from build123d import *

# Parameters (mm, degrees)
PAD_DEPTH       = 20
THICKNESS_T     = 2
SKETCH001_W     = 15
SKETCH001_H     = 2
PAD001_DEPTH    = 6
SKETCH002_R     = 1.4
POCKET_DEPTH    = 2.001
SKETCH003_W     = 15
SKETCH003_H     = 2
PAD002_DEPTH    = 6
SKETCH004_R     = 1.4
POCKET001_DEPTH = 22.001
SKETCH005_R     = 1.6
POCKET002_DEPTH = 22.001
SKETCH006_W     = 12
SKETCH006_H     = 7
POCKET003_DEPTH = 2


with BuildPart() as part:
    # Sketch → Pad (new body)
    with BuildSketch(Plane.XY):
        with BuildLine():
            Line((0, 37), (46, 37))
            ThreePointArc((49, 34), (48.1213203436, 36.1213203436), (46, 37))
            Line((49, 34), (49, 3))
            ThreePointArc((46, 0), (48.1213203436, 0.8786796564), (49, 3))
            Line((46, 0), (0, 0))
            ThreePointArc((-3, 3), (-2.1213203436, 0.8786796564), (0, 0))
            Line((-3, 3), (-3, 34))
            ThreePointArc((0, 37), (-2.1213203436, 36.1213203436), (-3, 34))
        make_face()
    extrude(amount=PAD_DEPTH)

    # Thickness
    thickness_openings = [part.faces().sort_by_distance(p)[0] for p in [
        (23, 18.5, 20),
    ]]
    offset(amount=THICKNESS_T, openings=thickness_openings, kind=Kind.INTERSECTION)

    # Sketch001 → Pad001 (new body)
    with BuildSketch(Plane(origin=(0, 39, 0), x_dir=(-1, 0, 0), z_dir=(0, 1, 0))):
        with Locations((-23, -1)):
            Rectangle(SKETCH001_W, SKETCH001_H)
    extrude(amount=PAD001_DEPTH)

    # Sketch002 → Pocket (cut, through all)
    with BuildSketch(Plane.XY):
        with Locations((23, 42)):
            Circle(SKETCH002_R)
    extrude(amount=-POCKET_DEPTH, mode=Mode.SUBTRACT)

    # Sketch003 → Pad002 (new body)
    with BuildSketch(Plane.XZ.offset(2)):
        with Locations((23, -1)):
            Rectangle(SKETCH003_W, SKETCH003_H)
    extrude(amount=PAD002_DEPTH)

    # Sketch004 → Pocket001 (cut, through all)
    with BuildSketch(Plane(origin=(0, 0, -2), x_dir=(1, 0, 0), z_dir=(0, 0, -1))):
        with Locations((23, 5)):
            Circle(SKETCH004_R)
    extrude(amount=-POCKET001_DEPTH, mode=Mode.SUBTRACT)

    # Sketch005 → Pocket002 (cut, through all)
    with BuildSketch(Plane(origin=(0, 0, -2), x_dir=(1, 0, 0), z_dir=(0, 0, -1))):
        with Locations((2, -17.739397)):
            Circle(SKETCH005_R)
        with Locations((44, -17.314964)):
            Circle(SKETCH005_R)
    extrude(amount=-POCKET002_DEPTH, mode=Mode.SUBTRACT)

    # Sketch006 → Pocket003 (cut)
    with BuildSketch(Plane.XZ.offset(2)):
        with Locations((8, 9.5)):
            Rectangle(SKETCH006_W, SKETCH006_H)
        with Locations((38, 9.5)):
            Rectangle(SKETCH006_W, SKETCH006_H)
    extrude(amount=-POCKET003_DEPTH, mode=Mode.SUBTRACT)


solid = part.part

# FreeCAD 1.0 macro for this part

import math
import FreeCAD as App
import Part
import Sketcher

V = App.Vector
Q = App.Units.Quantity


def faces_at(feature, points):
    """Names of the faces that lie closest to the given points."""
    faces = feature.Shape.Faces
    near = lambda p: min(range(len(faces)), key=lambda i: faces[i].distToShape(Part.Vertex(*p))[0])
    return sorted({f"Face{near(p) + 1}" for p in points})

doc = App.newDocument("Part")
body = doc.addObject("PartDesign::Body", "Body")

# Sketch on XY plane
sketch1 = doc.addObject("Sketcher::SketchObject", "Sketch")
body.addObject(sketch1)
sketch1.AttachmentSupport = (doc.XY_Plane, [""])
sketch1.MapMode = "FlatFace"
sketch1.addGeometry([
    Part.LineSegment(V(46, 37, 0), V(0, 37, 0)),  # 0
    Part.ArcOfCircle(Part.Circle(V(0, 34, 0), V(0, 0, 1), 3), math.radians(90), math.radians(180)),  # 1
    Part.LineSegment(V(-3, 34, 0), V(-3, 3, 0)),  # 2
    Part.ArcOfCircle(Part.Circle(V(0, 3, 0), V(0, 0, 1), 3), math.radians(180), math.radians(270)),  # 3
    Part.LineSegment(V(0, 0, 0), V(46, 0, 0)),  # 4
    Part.ArcOfCircle(Part.Circle(V(46, 3, 0), V(0, 0, 1), 3), math.radians(-90), math.radians(0)),  # 5
    Part.LineSegment(V(49, 3, 0), V(49, 34, 0)),  # 6
    Part.ArcOfCircle(Part.Circle(V(46, 34, 0), V(0, 0, 1), 3), math.radians(0), math.radians(90)),  # 7
], False)
sketch1.addConstraint([
    Sketcher.Constraint("Tangent", 0, 2, 1, 1),
    Sketcher.Constraint("Tangent", 1, 2, 2, 1),
    Sketcher.Constraint("Tangent", 2, 2, 3, 1),
    Sketcher.Constraint("Tangent", 3, 2, 4, 1),
    Sketcher.Constraint("Tangent", 4, 2, 5, 1),
    Sketcher.Constraint("Tangent", 5, 2, 6, 1),
    Sketcher.Constraint("Tangent", 6, 2, 7, 1),
    Sketcher.Constraint("Tangent", 7, 2, 0, 1),
    Sketcher.Constraint("Horizontal", 0),
    Sketcher.Constraint("Vertical", 2),
    Sketcher.Constraint("Horizontal", 4),
    Sketcher.Constraint("Vertical", 6),
    Sketcher.Constraint("Coincident", 3, 2, -1, 1),
    Sketcher.Constraint("Equal", 1, 3),
    Sketcher.Constraint("Equal", 3, 5),
    Sketcher.Constraint("Equal", 5, 7),
    Sketcher.Constraint("Radius", 1, Q("3 mm")),
    Sketcher.Constraint("DistanceX", 0, 2, 0, 1, Q("46 mm")),
    Sketcher.Constraint("DistanceY", 2, 2, 2, 1, Q("31 mm")),
])
pad1 = doc.addObject("PartDesign::Pad", "Pad")
body.addObject(pad1)
pad1.Profile = sketch1
pad1.Length = 20
doc.recompute()

thickness = doc.addObject("PartDesign::Thickness", "Thickness")
body.addObject(thickness)
thickness.Base = (pad1, faces_at(pad1, [(23, 18.5, 20)]))
thickness.Value = 2
thickness.Reversed = False
thickness.Join = "Intersection"

# Sketch on XZ plane
sketch2 = doc.addObject("Sketcher::SketchObject", "Sketch001")
body.addObject(sketch2)
sketch2.AttachmentSupport = (doc.XZ_Plane, [""])
sketch2.MapMode = "FlatFace"
sketch2.AttachmentOffset = App.Placement(V(0, 0, -39), App.Rotation())
sketch2.addGeometry([
    Part.LineSegment(V(30.5, 0, 0), V(30.5, -2, 0)),
    Part.LineSegment(V(30.5, -2, 0), V(15.5, -2, 0)),
    Part.LineSegment(V(15.5, -2, 0), V(15.5, 0, 0)),
    Part.LineSegment(V(15.5, 0, 0), V(30.5, 0, 0)),
], False)
sketch2.addConstraint([
    Sketcher.Constraint("Coincident", 0, 2, 1, 1),
    Sketcher.Constraint("Coincident", 1, 2, 2, 1),
    Sketcher.Constraint("Coincident", 2, 2, 3, 1),
    Sketcher.Constraint("Coincident", 3, 2, 0, 1),
    Sketcher.Constraint("Vertical", 0),
    Sketcher.Constraint("Horizontal", 1),
    Sketcher.Constraint("Vertical", 2),
    Sketcher.Constraint("Horizontal", 3),
    Sketcher.Constraint("PointOnObject", 2, 2, -1),
    Sketcher.Constraint("DistanceX", 1, 2, 1, 1, Q("15 mm")),
    Sketcher.Constraint("DistanceY", 0, 2, 0, 1, Q("2 mm")),
    Sketcher.Constraint("DistanceX", -1, 1, 0, 2, Q("30.5 mm")),
])
pad2 = doc.addObject("PartDesign::Pad", "Pad001")
body.addObject(pad2)
pad2.Profile = sketch2
pad2.Length = 6
pad2.Reversed = True

# Sketch on XY plane
sketch3 = doc.addObject("Sketcher::SketchObject", "Sketch002")
body.addObject(sketch3)
sketch3.AttachmentSupport = (doc.XY_Plane, [""])
sketch3.MapMode = "FlatFace"
sketch3.addGeometry(Part.Circle(V(23, 42, 0), V(0, 0, 1), 1.4), False)
sketch3.addConstraint([
    Sketcher.Constraint("Diameter", 0, Q("2.8 mm")),
    Sketcher.Constraint("DistanceX", -1, 1, 0, 3, Q("23 mm")),
    Sketcher.Constraint("DistanceY", -1, 1, 0, 3, Q("42 mm")),
])
pocket1 = doc.addObject("PartDesign::Pocket", "Pocket")
body.addObject(pocket1)
pocket1.Profile = sketch3
pocket1.Type = "ThroughAll"

# Sketch on XZ plane
sketch4 = doc.addObject("Sketcher::SketchObject", "Sketch003")
body.addObject(sketch4)
sketch4.AttachmentSupport = (doc.XZ_Plane, [""])
sketch4.MapMode = "FlatFace"
sketch4.AttachmentOffset = App.Placement(V(0, 0, 2), App.Rotation())
sketch4.addGeometry([
    Part.LineSegment(V(15.5, 0, 0), V(15.5, -2, 0)),
    Part.LineSegment(V(15.5, -2, 0), V(30.5, -2, 0)),
    Part.LineSegment(V(30.5, -2, 0), V(30.5, 0, 0)),
    Part.LineSegment(V(30.5, 0, 0), V(15.5, 0, 0)),
], False)
sketch4.addConstraint([
    Sketcher.Constraint("Coincident", 0, 2, 1, 1),
    Sketcher.Constraint("Coincident", 1, 2, 2, 1),
    Sketcher.Constraint("Coincident", 2, 2, 3, 1),
    Sketcher.Constraint("Coincident", 3, 2, 0, 1),
    Sketcher.Constraint("Vertical", 0),
    Sketcher.Constraint("Horizontal", 1),
    Sketcher.Constraint("Vertical", 2),
    Sketcher.Constraint("Horizontal", 3),
    Sketcher.Constraint("PointOnObject", 2, 2, -1),
    Sketcher.Constraint("DistanceX", 1, 1, 1, 2, Q("15 mm")),
    Sketcher.Constraint("DistanceY", 0, 2, 0, 1, Q("2 mm")),
    Sketcher.Constraint("DistanceX", -1, 1, 0, 2, Q("15.5 mm")),
])
pad3 = doc.addObject("PartDesign::Pad", "Pad002")
body.addObject(pad3)
pad3.Profile = sketch4
pad3.Length = 6

# Sketch on XY plane
sketch5 = doc.addObject("Sketcher::SketchObject", "Sketch004")
body.addObject(sketch5)
sketch5.AttachmentSupport = (doc.XY_Plane, [""])
sketch5.MapMode = "FlatFace"
sketch5.AttachmentOffset = App.Placement(V(0, 0, -2), App.Rotation())
sketch5.addGeometry(Part.Circle(V(23, -5, 0), V(0, 0, 1), 1.4), False)
sketch5.addConstraint([
    Sketcher.Constraint("Diameter", 0, Q("2.8 mm")),
    Sketcher.Constraint("DistanceX", -1, 1, 0, 3, Q("23 mm")),
    Sketcher.Constraint("DistanceY", 0, 3, -1, 1, Q("5 mm")),
])
pocket2 = doc.addObject("PartDesign::Pocket", "Pocket001")
body.addObject(pocket2)
pocket2.Profile = sketch5
pocket2.Type = "ThroughAll"
pocket2.Reversed = True

# Sketch on XY plane
sketch6 = doc.addObject("Sketcher::SketchObject", "Sketch005")
body.addObject(sketch6)
sketch6.AttachmentSupport = (doc.XY_Plane, [""])
sketch6.MapMode = "FlatFace"
sketch6.AttachmentOffset = App.Placement(V(0, 0, -2), App.Rotation())
sketch6.addGeometry([
    Part.Circle(V(2, 17.7, 0), V(0, 0, 1), 1.6),
    Part.Circle(V(44, 17.3, 0), V(0, 0, 1), 1.6),
], False)
sketch6.addConstraint([
    Sketcher.Constraint("Equal", 0, 1),
    Sketcher.Constraint("Diameter", 0, Q("3.2 mm")),
    Sketcher.Constraint("DistanceX", -1, 1, 0, 3, Q("2 mm")),
    Sketcher.Constraint("DistanceX", -1, 1, 1, 3, Q("44 mm")),
    Sketcher.Constraint("DistanceY", -1, 1, 0, 3, Q("17.739397 mm")),
    Sketcher.Constraint("DistanceY", -1, 1, 1, 3, Q("17.314964 mm")),
])
pocket3 = doc.addObject("PartDesign::Pocket", "Pocket002")
body.addObject(pocket3)
pocket3.Profile = sketch6
pocket3.Type = "ThroughAll"
pocket3.Reversed = True

# Sketch on XZ plane
sketch7 = doc.addObject("Sketcher::SketchObject", "Sketch006")
body.addObject(sketch7)
sketch7.AttachmentSupport = (doc.XZ_Plane, [""])
sketch7.MapMode = "FlatFace"
sketch7.AttachmentOffset = App.Placement(V(0, 0, 2), App.Rotation())
sketch7.addGeometry([
    Part.LineSegment(V(2, 13, 0), V(2, 6, 0)),  # 0
    Part.LineSegment(V(2, 6, 0), V(14, 6, 0)),  # 1
    Part.LineSegment(V(14, 6, 0), V(14, 13, 0)),  # 2
    Part.LineSegment(V(14, 13, 0), V(2, 13, 0)),  # 3
    Part.LineSegment(V(32, 13, 0), V(32, 6, 0)),  # 4
    Part.LineSegment(V(32, 6, 0), V(44, 6, 0)),  # 5
    Part.LineSegment(V(44, 6, 0), V(44, 13, 0)),  # 6
    Part.LineSegment(V(44, 13, 0), V(32, 13, 0)),  # 7
], False)
sketch7.addConstraint([
    Sketcher.Constraint("Coincident", 0, 2, 1, 1),
    Sketcher.Constraint("Coincident", 1, 2, 2, 1),
    Sketcher.Constraint("Coincident", 2, 2, 3, 1),
    Sketcher.Constraint("Coincident", 3, 2, 0, 1),
    Sketcher.Constraint("Coincident", 4, 2, 5, 1),
    Sketcher.Constraint("Coincident", 5, 2, 6, 1),
    Sketcher.Constraint("Coincident", 6, 2, 7, 1),
    Sketcher.Constraint("Coincident", 7, 2, 4, 1),
    Sketcher.Constraint("Vertical", 0),
    Sketcher.Constraint("Horizontal", 1),
    Sketcher.Constraint("Vertical", 2),
    Sketcher.Constraint("Horizontal", 3),
    Sketcher.Constraint("Vertical", 4),
    Sketcher.Constraint("Horizontal", 5),
    Sketcher.Constraint("Vertical", 6),
    Sketcher.Constraint("Horizontal", 7),
    Sketcher.Constraint("Horizontal", 1, 2, 4, 2),
    Sketcher.Constraint("Horizontal", 3, 2, 6, 2),
    Sketcher.Constraint("Equal", 3, 5),
    Sketcher.Constraint("DistanceX", 1, 1, 1, 2, Q("12 mm")),
    Sketcher.Constraint("DistanceY", 0, 2, 0, 1, Q("7 mm")),
    Sketcher.Constraint("DistanceX", -1, 1, 0, 2, Q("2 mm")),
    Sketcher.Constraint("DistanceY", -1, 1, 0, 2, Q("6 mm")),
    Sketcher.Constraint("DistanceX", -1, 1, 4, 2, Q("32 mm")),
])
pocket4 = doc.addObject("PartDesign::Pocket", "Pocket003")
body.addObject(pocket4)
pocket4.Profile = sketch7
pocket4.Length = 2

doc.recompute()
